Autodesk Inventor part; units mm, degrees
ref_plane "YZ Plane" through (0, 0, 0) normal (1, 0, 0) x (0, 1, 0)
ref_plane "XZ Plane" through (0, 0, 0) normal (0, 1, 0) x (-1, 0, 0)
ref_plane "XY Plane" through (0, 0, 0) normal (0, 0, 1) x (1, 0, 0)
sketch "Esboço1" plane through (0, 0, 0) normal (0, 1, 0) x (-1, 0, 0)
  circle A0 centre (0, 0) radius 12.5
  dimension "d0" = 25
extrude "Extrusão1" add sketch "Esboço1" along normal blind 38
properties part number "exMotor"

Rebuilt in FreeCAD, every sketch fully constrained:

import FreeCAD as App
import Part
import Sketcher
Q = App.Units.Quantity

doc = App.newDocument("Part")
body = doc.addObject("PartDesign::Body", "Body")

sketch1 = body.newObject("Sketcher::SketchObject", "Sketch")
sketch1.AttachmentSupport = (doc.getObject("XZ_Plane"), [""])
sketch1.MapMode = "FlatFace"
sketch1.addGeometry(Part.Circle(App.Vector(0, 0, 0), App.Vector(0, 0, 1), 12.5), False)
sketch1.addConstraint([
    Sketcher.Constraint("Coincident", 0, 3, -1, 1),
    Sketcher.Constraint("Diameter", 0, Q("25 mm")),
])
pad1 = body.newObject("PartDesign::Pad", "Pad")
pad1.Profile = sketch1
pad1.Length = 38
pad1.Reversed = True

doc.recompute()
